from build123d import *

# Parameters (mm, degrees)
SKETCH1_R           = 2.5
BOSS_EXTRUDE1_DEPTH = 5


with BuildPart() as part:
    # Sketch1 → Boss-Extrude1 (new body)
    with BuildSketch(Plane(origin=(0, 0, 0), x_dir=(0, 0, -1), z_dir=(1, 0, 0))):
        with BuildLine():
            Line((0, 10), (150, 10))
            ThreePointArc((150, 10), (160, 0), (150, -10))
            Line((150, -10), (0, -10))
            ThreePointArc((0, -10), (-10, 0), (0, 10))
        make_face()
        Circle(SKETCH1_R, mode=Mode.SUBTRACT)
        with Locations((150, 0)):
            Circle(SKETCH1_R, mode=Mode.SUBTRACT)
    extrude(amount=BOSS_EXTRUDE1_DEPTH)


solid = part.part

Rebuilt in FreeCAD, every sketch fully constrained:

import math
import FreeCAD as App
import Part
import Sketcher
from FreeCAD import Vector

doc = App.newDocument("Part")
params = doc.addObject("Spreadsheet::Sheet", "Params")
for row, (alias, value) in enumerate([
    ("sketch1_diameter", "5 mm"),
    ("sketch1_radius", "10 mm"),
    ("sketch1_height", "150 mm"),
    ("pad1_length", "5 mm"),
], start=1):
    params.set(f"A{row}", alias)
    params.set(f"B{row}", "=" + value)
    params.setAlias(f"B{row}", alias)

body = doc.addObject("PartDesign::Body", "Body")

# Sketch on YZ plane
sketch1 = body.newObject("Sketcher::SketchObject", "Sketch")
sketch1.AttachmentSupport = (doc.getObject("YZ_Plane"), [""])
sketch1.MapMode = "FlatFace"
sketch1.addGeometry([
    Part.LineSegment(Vector(10, -150, 0), Vector(10, 0, 0)),  # 0
    Part.ArcOfCircle(Part.Circle(Vector(0, 0, 0), Vector(0, 0, 1), 10), math.radians(0), math.radians(180)),  # 1
    Part.LineSegment(Vector(-10, 0, 0), Vector(-10, -150, 0)),  # 2
    Part.ArcOfCircle(Part.Circle(Vector(0, -150, 0), Vector(0, 0, 1), 10), math.radians(180), math.radians(360)),  # 3
    Part.Circle(Vector(0, -150, 0), Vector(0, 0, 1), 2.5),  # 4
    Part.Circle(Vector(0, 0, 0), Vector(0, 0, 1), 2.5),  # 5
], False)
sketch1.addConstraint([
    Sketcher.Constraint("Tangent", 0, 2, 1, 1),
    Sketcher.Constraint("Tangent", 1, 2, 2, 1),
    Sketcher.Constraint("Tangent", 2, 2, 3, 1),
    Sketcher.Constraint("Tangent", 3, 2, 0, 1),
    Sketcher.Constraint("Vertical", 0),
    Sketcher.Constraint("Vertical", 2),
    Sketcher.Constraint("Coincident", 1, 3, -1, 1),
    Sketcher.Constraint("Coincident", 5, 3, -1, 1),
    Sketcher.Constraint("Coincident", 4, 3, 3, 3),
    Sketcher.Constraint("Equal", 4, 5),
    Sketcher.Constraint("Diameter", 4, 5.0),
    Sketcher.Constraint("Radius", 1, 10.0),
    Sketcher.Constraint("DistanceY", 0, 1, 0, 2, 150.0),
])
sketch1.setExpression("Constraints[10]", "Params.sketch1_diameter")
sketch1.setExpression("Constraints[11]", "Params.sketch1_radius")
sketch1.setExpression("Constraints[12]", "Params.sketch1_height")
pad1 = body.newObject("PartDesign::Pad", "Pad")
pad1.Profile = sketch1
pad1.setExpression("Length", "Params.pad1_length")

doc.recompute()
